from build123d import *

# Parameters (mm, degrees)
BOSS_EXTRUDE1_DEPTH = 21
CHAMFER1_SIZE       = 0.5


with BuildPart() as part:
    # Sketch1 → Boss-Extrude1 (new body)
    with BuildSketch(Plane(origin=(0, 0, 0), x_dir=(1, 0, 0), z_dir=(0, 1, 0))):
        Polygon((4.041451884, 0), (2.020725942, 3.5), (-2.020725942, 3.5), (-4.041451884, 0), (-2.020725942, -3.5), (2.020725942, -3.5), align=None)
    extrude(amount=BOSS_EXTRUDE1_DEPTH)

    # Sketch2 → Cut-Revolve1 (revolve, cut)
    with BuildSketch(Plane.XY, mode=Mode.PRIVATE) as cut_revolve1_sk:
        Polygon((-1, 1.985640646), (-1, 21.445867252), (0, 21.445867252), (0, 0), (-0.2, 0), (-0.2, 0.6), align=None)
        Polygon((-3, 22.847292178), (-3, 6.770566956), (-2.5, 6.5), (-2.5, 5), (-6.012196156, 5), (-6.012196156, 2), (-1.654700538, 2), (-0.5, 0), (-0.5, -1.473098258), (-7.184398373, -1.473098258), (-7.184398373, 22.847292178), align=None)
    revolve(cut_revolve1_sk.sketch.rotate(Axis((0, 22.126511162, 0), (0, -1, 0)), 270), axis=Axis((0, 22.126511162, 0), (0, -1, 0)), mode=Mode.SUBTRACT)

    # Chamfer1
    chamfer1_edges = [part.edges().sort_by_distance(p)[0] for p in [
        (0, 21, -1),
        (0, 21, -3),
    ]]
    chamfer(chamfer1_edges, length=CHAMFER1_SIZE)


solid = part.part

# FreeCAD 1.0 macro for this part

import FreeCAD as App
import Part
import Sketcher
Q = App.Units.Quantity


def edges_at(feature, points):
    """Names of the edges that pass closest to the given points."""
    edges = feature.Shape.Edges
    near = lambda p: min(range(len(edges)), key=lambda i: edges[i].distToShape(Part.Vertex(*p))[0])
    return sorted({f"Edge{near(p) + 1}" for p in points})


def add_polygon(sketch, points):
    """Adds a closed chain of lines whose ends are joined by coincident constraints."""
    first, n = sketch.GeometryCount, len(points)
    for a, b in zip(points, points[1:] + points[:1]):
        sketch.addGeometry(Part.LineSegment(App.Vector(*a, 0), App.Vector(*b, 0)), False)
    for i in range(n):
        sketch.addConstraint(Sketcher.Constraint("Coincident", first + i, 2, first + (i + 1) % n, 1))

doc = App.newDocument("Part")
body = doc.addObject("PartDesign::Body", "Body")

sketch1 = body.newObject("Sketcher::SketchObject", "Sketch")
sketch1.AttachmentSupport = (doc.getObject("XZ_Plane"), [""])
sketch1.MapMode = "FlatFace"
add_polygon(sketch1, [(4, 0), (2, -3.5), (-2, -3.5), (-4, 0), (-2, 3.5), (2, 3.5)])
sketch1.addConstraint([
    Sketcher.Constraint("Horizontal", 1),
    Sketcher.Constraint("Horizontal", 4),
    Sketcher.Constraint("Symmetric", 0, 2, 3, 2, -1, 1),
    Sketcher.Constraint("Symmetric", 2, 2, 5, 2, -1, 1),
    Sketcher.Constraint("PointOnObject", 2, 2, -1),
    Sketcher.Constraint("Parallel", 2, 5),
    Sketcher.Constraint("Vertical", 1, 2, 3, 2),
    Sketcher.Constraint("Angle", 0, Q("-120 deg")),
    Sketcher.Constraint("DistanceY", 1, 2, 3, 2, 7.0),
    Sketcher.Constraint("DistanceX", 1, 2, 1, 1, 4.041452),
])
pad1 = body.newObject("PartDesign::Pad", "Pad")
pad1.Profile = sketch1
pad1.Length = 21
pad1.Reversed = True

sketch2 = body.newObject("Sketcher::SketchObject", "Sketch001")
sketch2.AttachmentSupport = (doc.getObject("XY_Plane"), [""])
sketch2.MapMode = "FlatFace"
add_polygon(sketch2, [(-1, 21.45), (-1, 1.99), (-0.2, 0.6), (-0.2, 0), (0, 0), (0, 21.45)])
add_polygon(sketch2, [(-3, 6.77), (-3, 22.85), (-7.18, 22.85), (-7.18, -1.47), (-0.5, -1.47), (-0.5, 0), (-1.65, 2), (-6.01, 2), (-6.01, 5), (-2.5, 5), (-2.5, 6.5)])
sketch2.addConstraint([
    Sketcher.Constraint("Vertical", 0),
    Sketcher.Constraint("Vertical", 2),
    Sketcher.Constraint("Horizontal", 3),
    Sketcher.Constraint("Vertical", 4),
    Sketcher.Constraint("Horizontal", 5),
    Sketcher.Constraint("Vertical", 6),
    Sketcher.Constraint("Horizontal", 7),
    Sketcher.Constraint("Vertical", 8),
    Sketcher.Constraint("Horizontal", 9),
    Sketcher.Constraint("Vertical", 10),
    Sketcher.Constraint("Horizontal", 12),
    Sketcher.Constraint("Vertical", 13),
    Sketcher.Constraint("Horizontal", 14),
    Sketcher.Constraint("Vertical", 15),
    Sketcher.Constraint("Coincident", 3, 2, -1, 1),
    Sketcher.Constraint("PointOnObject", 10, 2, -1),
    Sketcher.Constraint("Parallel", 1, 11),
    Sketcher.Constraint("DistanceX", 5, 2, 5, 1, 1.0),
    Sketcher.Constraint("DistanceY", 13, 1, 13, 2, 3.0),
    Sketcher.Constraint("Angle", 1, Q("-60 deg")),
    Sketcher.Constraint("DistanceX", 3, 1, 3, 2, 0.2),
    Sketcher.Constraint("DistanceY", 2, 2, 2, 1, 0.6),
    Sketcher.Constraint("DistanceY", 15, 1, 15, 2, 1.5),
    Sketcher.Constraint("DistanceX", 6, 2, -1, 1, 3.0),
    Sketcher.Constraint("DistanceY", -1, 1, 11, 2, 2.0),
    Sketcher.Constraint("DistanceX", 9, 2, -1, 1, 0.5),
    Sketcher.Constraint("DistanceX", 14, 2, -1, 1, 2.5),
    Sketcher.Constraint("DistanceX", 7, 2, 7, 1, 4.184398),
    Sketcher.Constraint("DistanceY", 10, 1, 10, 2, 1.473098),
    Sketcher.Constraint("DistanceY", 8, 2, 8, 1, 24.32039),
    Sketcher.Constraint("DistanceX", 12, 2, 12, 1, 4.357496),
    Sketcher.Constraint("DistanceY", 0, 2, 0, 1, 19.460227),
    Sketcher.Constraint("DistanceY", 6, 1, 6, 2, 16.076725),
])
groove = body.newObject("PartDesign::Groove", "Groove")
groove.Profile = sketch2
groove.ReferenceAxis = (sketch2, ["V_Axis"])
groove.Angle = 360
doc.recompute()

chamfer = body.newObject("PartDesign::Chamfer", "Chamfer")
chamfer.Base = (groove, edges_at(groove, [(0, 21, -1), (0, 21, -3)]))
chamfer.Size = 0.5

doc.recompute()
